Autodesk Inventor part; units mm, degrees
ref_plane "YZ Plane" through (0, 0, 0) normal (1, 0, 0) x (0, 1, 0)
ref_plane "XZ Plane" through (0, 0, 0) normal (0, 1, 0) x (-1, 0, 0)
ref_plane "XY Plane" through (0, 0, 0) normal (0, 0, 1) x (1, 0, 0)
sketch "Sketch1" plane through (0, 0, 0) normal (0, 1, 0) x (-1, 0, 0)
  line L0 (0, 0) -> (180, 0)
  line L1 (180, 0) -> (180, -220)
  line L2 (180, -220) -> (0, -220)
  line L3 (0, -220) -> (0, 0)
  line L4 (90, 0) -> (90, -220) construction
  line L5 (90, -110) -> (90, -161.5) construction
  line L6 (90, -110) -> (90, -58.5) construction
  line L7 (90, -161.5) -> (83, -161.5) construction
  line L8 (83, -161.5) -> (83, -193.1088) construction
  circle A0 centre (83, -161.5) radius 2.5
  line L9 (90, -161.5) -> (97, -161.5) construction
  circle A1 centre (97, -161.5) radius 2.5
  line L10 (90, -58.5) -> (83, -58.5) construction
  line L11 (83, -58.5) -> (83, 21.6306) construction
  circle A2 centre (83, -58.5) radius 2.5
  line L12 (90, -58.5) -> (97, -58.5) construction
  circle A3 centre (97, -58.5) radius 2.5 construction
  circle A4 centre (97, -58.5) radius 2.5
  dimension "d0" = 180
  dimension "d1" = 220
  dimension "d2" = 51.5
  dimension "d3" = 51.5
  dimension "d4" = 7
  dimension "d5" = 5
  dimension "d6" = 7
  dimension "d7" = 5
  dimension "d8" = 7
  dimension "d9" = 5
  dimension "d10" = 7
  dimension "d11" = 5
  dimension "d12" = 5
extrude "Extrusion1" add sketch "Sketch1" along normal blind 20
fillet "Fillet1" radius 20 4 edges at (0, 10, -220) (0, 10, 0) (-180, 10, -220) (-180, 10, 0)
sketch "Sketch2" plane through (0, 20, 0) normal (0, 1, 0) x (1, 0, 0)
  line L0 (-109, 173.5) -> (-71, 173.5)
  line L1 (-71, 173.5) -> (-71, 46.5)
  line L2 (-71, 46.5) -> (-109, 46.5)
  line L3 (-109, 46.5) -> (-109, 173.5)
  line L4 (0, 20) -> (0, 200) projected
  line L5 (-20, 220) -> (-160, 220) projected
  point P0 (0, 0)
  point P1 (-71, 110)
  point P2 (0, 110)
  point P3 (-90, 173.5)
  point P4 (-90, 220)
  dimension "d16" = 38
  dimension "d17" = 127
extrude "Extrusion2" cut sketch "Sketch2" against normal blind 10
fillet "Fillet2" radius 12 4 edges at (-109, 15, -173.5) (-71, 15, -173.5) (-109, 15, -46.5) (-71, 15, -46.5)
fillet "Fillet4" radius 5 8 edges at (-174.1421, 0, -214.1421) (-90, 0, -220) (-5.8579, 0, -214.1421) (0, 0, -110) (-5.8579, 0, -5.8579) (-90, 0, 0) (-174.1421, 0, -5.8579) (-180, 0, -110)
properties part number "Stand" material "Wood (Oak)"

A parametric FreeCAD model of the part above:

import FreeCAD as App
import Part
import Sketcher

V = App.Vector
Q = App.Units.Quantity


def edges_at(feature, points):
    """Names of the edges that pass closest to the given points."""
    edges = feature.Shape.Edges
    near = lambda p: min(range(len(edges)), key=lambda i: edges[i].distToShape(Part.Vertex(*p))[0])
    return sorted({f"Edge{near(p) + 1}" for p in points})


def add_polygon(sketch, points):
    """Adds a closed chain of lines whose ends are joined by coincident constraints."""
    first, n = sketch.GeometryCount, len(points)
    for a, b in zip(points, points[1:] + points[:1]):
        sketch.addGeometry(Part.LineSegment(App.Vector(*a, 0), App.Vector(*b, 0)), False)
    for i in range(n):
        sketch.addConstraint(Sketcher.Constraint("Coincident", first + i, 2, first + (i + 1) % n, 1))

doc = App.newDocument("Part")
params = doc.addObject("Spreadsheet::Sheet", "Params")
for row, (alias, value) in enumerate([
    ("sketch1_diameter", "5 mm"),
    ("sketch1_width", "180 mm"),
    ("sketch1_height", "220 mm"),
    ("pad1_length", "20 mm"),
    ("fillet_radius", "20 mm"),
    ("sketch2_width", "38 mm"),
    ("sketch2_height", "127 mm"),
    ("pocket1_length", "10 mm"),
    ("fillet2_radius", "12 mm"),
    ("fillet3_radius", "5 mm"),
], start=1):
    params.set(f"A{row}", alias)
    params.set(f"B{row}", "=" + value)
    params.setAlias(f"B{row}", alias)

body = doc.addObject("PartDesign::Body", "Body")

# Sketch on XZ plane
sketch1 = body.newObject("Sketcher::SketchObject", "Sketch")
sketch1.AttachmentSupport = (doc.getObject("XZ_Plane"), [""])
sketch1.MapMode = "FlatFace"
add_polygon(sketch1, [(-180, 0), (0, 0), (0, -220), (-180, -220)])  # lines 0-3
sketch1.addGeometry(Part.Circle(V(-83, -161.5, 0), V(0, 0, 1), 2.5), False)  # 4
sketch1.addGeometry(Part.Circle(V(-97, -161.5, 0), V(0, 0, 1), 2.5), False)  # 5
sketch1.addGeometry(Part.Circle(V(-83, -58.5, 0), V(0, 0, 1), 2.5), False)  # 6
sketch1.addGeometry(Part.Circle(V(-97, -58.5, 0), V(0, 0, 1), 2.5), False)  # 7
sketch1.addConstraint(Sketcher.Constraint("Horizontal", 0))
sketch1.addConstraint(Sketcher.Constraint("Vertical", 1))
sketch1.addConstraint(Sketcher.Constraint("Horizontal", 2))
sketch1.addConstraint(Sketcher.Constraint("Vertical", 3))
sketch1.addConstraint(Sketcher.Constraint("Coincident", 0, 2, -1, 1))
sketch1.addConstraint(Sketcher.Constraint("Equal", 4, 5))
sketch1.addConstraint(Sketcher.Constraint("Equal", 5, 6))
sketch1.addConstraint(Sketcher.Constraint("Equal", 6, 7))
sketch1.addConstraint(Sketcher.Constraint("Horizontal", 4, 3, 5, 3))
sketch1.addConstraint(Sketcher.Constraint("Horizontal", 6, 3, 7, 3))
sketch1.addConstraint(Sketcher.Constraint("Vertical", 4, 3, 6, 3))
sketch1.addConstraint(Sketcher.Constraint("Vertical", 5, 3, 7, 3))
sketch1.addConstraint(Sketcher.Constraint("Diameter", 4, Q("5 mm")))
sketch1.addConstraint(Sketcher.Constraint("DistanceX", 0, 1, 0, 2, Q("180 mm")))
sketch1.addConstraint(Sketcher.Constraint("DistanceY", 1, 2, 1, 1, Q("220 mm")))
sketch1.addConstraint(Sketcher.Constraint("DistanceX", 4, 3, -1, 1, Q("83 mm")))
sketch1.addConstraint(Sketcher.Constraint("DistanceX", 5, 3, -1, 1, Q("97 mm")))
sketch1.addConstraint(Sketcher.Constraint("DistanceY", 4, 3, 6, 3, Q("103 mm")))
sketch1.addConstraint(Sketcher.Constraint("DistanceY", 4, 3, -1, 1, Q("161.5 mm")))
sketch1.setExpression("Constraints[16]", "Params.sketch1_diameter")
sketch1.setExpression("Constraints[17]", "Params.sketch1_width")
sketch1.setExpression("Constraints[18]", "Params.sketch1_height")
pad1 = body.newObject("PartDesign::Pad", "Pad")
pad1.Profile = sketch1
pad1.setExpression("Length", "Params.pad1_length")
pad1.Reversed = True
doc.recompute()

fillet = body.newObject("PartDesign::Fillet", "Fillet")
fillet.Base = (pad1, edges_at(pad1, [
    (0, 10, -220),
    (0, 10, 0),
    (-180, 10, -220),
    (-180, 10, 0),
]))
fillet.setExpression("Radius", "Params.fillet_radius")

# Sketch on XZ plane
sketch2 = body.newObject("Sketcher::SketchObject", "Sketch001")
sketch2.AttachmentSupport = (doc.getObject("XZ_Plane"), [""])
sketch2.MapMode = "FlatFace"
sketch2.AttachmentOffset = App.Placement(V(0, 0, -20), App.Rotation())
add_polygon(sketch2, [(-71, -174), (-109, -174), (-109, -46), (-71, -46)])  # lines 0-3
sketch2.addConstraint(Sketcher.Constraint("Horizontal", 0))
sketch2.addConstraint(Sketcher.Constraint("Vertical", 1))
sketch2.addConstraint(Sketcher.Constraint("Horizontal", 2))
sketch2.addConstraint(Sketcher.Constraint("Vertical", 3))
sketch2.addConstraint(Sketcher.Constraint("DistanceX", 0, 2, 0, 1, Q("38 mm")))
sketch2.addConstraint(Sketcher.Constraint("DistanceY", 1, 1, 1, 2, Q("127 mm")))
sketch2.addConstraint(Sketcher.Constraint("DistanceX", 0, 2, -1, 1, Q("109 mm")))
sketch2.addConstraint(Sketcher.Constraint("DistanceY", 0, 2, -1, 1, Q("173.5 mm")))
sketch2.setExpression("Constraints[8]", "Params.sketch2_width")
sketch2.setExpression("Constraints[9]", "Params.sketch2_height")
pocket1 = body.newObject("PartDesign::Pocket", "Pocket")
pocket1.Profile = sketch2
pocket1.setExpression("Length", "Params.pocket1_length")
pocket1.Reversed = True
doc.recompute()

fillet2 = body.newObject("PartDesign::Fillet", "Fillet001")
fillet2.Base = (pocket1, edges_at(pocket1, [
    (-109, 15, -173.5),
    (-71, 15, -173.5),
    (-109, 15, -46.5),
    (-71, 15, -46.5),
]))
fillet2.setExpression("Radius", "Params.fillet2_radius")
doc.recompute()

fillet3 = body.newObject("PartDesign::Fillet", "Fillet002")
fillet3.Base = (fillet2, edges_at(fillet2, [
    (-174.142, 0, -214.142),
    (-90, 0, -220),
    (-5.858, 0, -214.142),
    (0, 0, -110),
    (-5.858, 0, -5.858),
    (-90, 0, 0),
    (-174.142, 0, -5.858),
    (-180, 0, -110),
]))
fillet3.setExpression("Radius", "Params.fillet3_radius")

doc.recompute()
